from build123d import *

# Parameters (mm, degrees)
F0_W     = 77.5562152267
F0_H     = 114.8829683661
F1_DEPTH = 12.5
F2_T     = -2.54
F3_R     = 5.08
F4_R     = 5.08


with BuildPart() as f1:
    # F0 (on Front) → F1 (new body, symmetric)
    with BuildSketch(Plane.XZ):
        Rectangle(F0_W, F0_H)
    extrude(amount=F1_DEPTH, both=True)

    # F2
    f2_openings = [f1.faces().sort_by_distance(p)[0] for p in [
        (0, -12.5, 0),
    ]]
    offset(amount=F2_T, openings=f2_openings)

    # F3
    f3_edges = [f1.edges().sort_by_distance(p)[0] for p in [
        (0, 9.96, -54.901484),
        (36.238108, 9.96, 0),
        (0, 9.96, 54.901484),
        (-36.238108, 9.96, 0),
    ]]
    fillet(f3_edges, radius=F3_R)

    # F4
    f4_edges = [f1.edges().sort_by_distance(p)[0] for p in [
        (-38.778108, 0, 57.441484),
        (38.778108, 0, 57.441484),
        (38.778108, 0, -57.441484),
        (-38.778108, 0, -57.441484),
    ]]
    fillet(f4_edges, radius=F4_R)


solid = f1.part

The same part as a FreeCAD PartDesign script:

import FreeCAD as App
import Part
import Sketcher
Q = App.Units.Quantity


def edges_at(feature, points):
    """Names of the edges that pass closest to the given points."""
    edges = feature.Shape.Edges
    near = lambda p: min(range(len(edges)), key=lambda i: edges[i].distToShape(Part.Vertex(*p))[0])
    return sorted({f"Edge{near(p) + 1}" for p in points})


def faces_at(feature, points):
    """Names of the faces that lie closest to the given points."""
    faces = feature.Shape.Faces
    near = lambda p: min(range(len(faces)), key=lambda i: faces[i].distToShape(Part.Vertex(*p))[0])
    return sorted({f"Face{near(p) + 1}" for p in points})

doc = App.newDocument("Part")
body = doc.addObject("PartDesign::Body", "Body")

sketch1 = body.newObject("Sketcher::SketchObject", "Sketch")
sketch1.AttachmentSupport = (doc.getObject("XZ_Plane"), [""])
sketch1.MapMode = "FlatFace"
sketch1.addGeometry([
    Part.LineSegment(App.Vector(-39, 57, 0), App.Vector(-39, -57, 0)),
    Part.LineSegment(App.Vector(-39, -57, 0), App.Vector(39, -57, 0)),
    Part.LineSegment(App.Vector(39, -57, 0), App.Vector(39, 57, 0)),
    Part.LineSegment(App.Vector(39, 57, 0), App.Vector(-39, 57, 0)),
], False)
sketch1.addConstraint([
    Sketcher.Constraint("Coincident", 0, 2, 1, 1),
    Sketcher.Constraint("Coincident", 1, 2, 2, 1),
    Sketcher.Constraint("Coincident", 2, 2, 3, 1),
    Sketcher.Constraint("Coincident", 3, 2, 0, 1),
    Sketcher.Constraint("Vertical", 0),
    Sketcher.Constraint("Horizontal", 1),
    Sketcher.Constraint("Vertical", 2),
    Sketcher.Constraint("Horizontal", 3),
    Sketcher.Constraint("Symmetric", 0, 2, 2, 2, -1, 1),
    Sketcher.Constraint("DistanceY", 0, 2, 0, 1, Q("114.882968 mm")),
    Sketcher.Constraint("DistanceX", 1, 1, 1, 2, Q("77.556215 mm")),
])
pad1 = body.newObject("PartDesign::Pad", "Pad")
pad1.Profile = sketch1
pad1.Length = 25
pad1.Midplane = True
doc.recompute()

thickness = body.newObject("PartDesign::Thickness", "Thickness")
thickness.Base = (pad1, faces_at(pad1, [(0, -12.5, 0)]))
thickness.Value = Q("0.1 in")
thickness.Reversed = True
thickness.Join = "Arc"
doc.recompute()

fillet = body.newObject("PartDesign::Fillet", "Fillet")
fillet.Base = (thickness, edges_at(thickness, [
    (0, 9.96, -54.901),
    (36.238, 9.96, 0),
    (0, 9.96, 54.901),
    (-36.238, 9.96, 0),
]))
fillet.Radius = Q("0.2 in")
doc.recompute()

fillet2 = body.newObject("PartDesign::Fillet", "Fillet001")
fillet2.Base = (fillet, edges_at(fillet, [
    (-38.778, 0, 57.441),
    (38.778, 0, 57.441),
    (38.778, 0, -57.441),
    (-38.778, 0, -57.441),
]))
fillet2.Radius = Q("0.2 in")

doc.recompute()
